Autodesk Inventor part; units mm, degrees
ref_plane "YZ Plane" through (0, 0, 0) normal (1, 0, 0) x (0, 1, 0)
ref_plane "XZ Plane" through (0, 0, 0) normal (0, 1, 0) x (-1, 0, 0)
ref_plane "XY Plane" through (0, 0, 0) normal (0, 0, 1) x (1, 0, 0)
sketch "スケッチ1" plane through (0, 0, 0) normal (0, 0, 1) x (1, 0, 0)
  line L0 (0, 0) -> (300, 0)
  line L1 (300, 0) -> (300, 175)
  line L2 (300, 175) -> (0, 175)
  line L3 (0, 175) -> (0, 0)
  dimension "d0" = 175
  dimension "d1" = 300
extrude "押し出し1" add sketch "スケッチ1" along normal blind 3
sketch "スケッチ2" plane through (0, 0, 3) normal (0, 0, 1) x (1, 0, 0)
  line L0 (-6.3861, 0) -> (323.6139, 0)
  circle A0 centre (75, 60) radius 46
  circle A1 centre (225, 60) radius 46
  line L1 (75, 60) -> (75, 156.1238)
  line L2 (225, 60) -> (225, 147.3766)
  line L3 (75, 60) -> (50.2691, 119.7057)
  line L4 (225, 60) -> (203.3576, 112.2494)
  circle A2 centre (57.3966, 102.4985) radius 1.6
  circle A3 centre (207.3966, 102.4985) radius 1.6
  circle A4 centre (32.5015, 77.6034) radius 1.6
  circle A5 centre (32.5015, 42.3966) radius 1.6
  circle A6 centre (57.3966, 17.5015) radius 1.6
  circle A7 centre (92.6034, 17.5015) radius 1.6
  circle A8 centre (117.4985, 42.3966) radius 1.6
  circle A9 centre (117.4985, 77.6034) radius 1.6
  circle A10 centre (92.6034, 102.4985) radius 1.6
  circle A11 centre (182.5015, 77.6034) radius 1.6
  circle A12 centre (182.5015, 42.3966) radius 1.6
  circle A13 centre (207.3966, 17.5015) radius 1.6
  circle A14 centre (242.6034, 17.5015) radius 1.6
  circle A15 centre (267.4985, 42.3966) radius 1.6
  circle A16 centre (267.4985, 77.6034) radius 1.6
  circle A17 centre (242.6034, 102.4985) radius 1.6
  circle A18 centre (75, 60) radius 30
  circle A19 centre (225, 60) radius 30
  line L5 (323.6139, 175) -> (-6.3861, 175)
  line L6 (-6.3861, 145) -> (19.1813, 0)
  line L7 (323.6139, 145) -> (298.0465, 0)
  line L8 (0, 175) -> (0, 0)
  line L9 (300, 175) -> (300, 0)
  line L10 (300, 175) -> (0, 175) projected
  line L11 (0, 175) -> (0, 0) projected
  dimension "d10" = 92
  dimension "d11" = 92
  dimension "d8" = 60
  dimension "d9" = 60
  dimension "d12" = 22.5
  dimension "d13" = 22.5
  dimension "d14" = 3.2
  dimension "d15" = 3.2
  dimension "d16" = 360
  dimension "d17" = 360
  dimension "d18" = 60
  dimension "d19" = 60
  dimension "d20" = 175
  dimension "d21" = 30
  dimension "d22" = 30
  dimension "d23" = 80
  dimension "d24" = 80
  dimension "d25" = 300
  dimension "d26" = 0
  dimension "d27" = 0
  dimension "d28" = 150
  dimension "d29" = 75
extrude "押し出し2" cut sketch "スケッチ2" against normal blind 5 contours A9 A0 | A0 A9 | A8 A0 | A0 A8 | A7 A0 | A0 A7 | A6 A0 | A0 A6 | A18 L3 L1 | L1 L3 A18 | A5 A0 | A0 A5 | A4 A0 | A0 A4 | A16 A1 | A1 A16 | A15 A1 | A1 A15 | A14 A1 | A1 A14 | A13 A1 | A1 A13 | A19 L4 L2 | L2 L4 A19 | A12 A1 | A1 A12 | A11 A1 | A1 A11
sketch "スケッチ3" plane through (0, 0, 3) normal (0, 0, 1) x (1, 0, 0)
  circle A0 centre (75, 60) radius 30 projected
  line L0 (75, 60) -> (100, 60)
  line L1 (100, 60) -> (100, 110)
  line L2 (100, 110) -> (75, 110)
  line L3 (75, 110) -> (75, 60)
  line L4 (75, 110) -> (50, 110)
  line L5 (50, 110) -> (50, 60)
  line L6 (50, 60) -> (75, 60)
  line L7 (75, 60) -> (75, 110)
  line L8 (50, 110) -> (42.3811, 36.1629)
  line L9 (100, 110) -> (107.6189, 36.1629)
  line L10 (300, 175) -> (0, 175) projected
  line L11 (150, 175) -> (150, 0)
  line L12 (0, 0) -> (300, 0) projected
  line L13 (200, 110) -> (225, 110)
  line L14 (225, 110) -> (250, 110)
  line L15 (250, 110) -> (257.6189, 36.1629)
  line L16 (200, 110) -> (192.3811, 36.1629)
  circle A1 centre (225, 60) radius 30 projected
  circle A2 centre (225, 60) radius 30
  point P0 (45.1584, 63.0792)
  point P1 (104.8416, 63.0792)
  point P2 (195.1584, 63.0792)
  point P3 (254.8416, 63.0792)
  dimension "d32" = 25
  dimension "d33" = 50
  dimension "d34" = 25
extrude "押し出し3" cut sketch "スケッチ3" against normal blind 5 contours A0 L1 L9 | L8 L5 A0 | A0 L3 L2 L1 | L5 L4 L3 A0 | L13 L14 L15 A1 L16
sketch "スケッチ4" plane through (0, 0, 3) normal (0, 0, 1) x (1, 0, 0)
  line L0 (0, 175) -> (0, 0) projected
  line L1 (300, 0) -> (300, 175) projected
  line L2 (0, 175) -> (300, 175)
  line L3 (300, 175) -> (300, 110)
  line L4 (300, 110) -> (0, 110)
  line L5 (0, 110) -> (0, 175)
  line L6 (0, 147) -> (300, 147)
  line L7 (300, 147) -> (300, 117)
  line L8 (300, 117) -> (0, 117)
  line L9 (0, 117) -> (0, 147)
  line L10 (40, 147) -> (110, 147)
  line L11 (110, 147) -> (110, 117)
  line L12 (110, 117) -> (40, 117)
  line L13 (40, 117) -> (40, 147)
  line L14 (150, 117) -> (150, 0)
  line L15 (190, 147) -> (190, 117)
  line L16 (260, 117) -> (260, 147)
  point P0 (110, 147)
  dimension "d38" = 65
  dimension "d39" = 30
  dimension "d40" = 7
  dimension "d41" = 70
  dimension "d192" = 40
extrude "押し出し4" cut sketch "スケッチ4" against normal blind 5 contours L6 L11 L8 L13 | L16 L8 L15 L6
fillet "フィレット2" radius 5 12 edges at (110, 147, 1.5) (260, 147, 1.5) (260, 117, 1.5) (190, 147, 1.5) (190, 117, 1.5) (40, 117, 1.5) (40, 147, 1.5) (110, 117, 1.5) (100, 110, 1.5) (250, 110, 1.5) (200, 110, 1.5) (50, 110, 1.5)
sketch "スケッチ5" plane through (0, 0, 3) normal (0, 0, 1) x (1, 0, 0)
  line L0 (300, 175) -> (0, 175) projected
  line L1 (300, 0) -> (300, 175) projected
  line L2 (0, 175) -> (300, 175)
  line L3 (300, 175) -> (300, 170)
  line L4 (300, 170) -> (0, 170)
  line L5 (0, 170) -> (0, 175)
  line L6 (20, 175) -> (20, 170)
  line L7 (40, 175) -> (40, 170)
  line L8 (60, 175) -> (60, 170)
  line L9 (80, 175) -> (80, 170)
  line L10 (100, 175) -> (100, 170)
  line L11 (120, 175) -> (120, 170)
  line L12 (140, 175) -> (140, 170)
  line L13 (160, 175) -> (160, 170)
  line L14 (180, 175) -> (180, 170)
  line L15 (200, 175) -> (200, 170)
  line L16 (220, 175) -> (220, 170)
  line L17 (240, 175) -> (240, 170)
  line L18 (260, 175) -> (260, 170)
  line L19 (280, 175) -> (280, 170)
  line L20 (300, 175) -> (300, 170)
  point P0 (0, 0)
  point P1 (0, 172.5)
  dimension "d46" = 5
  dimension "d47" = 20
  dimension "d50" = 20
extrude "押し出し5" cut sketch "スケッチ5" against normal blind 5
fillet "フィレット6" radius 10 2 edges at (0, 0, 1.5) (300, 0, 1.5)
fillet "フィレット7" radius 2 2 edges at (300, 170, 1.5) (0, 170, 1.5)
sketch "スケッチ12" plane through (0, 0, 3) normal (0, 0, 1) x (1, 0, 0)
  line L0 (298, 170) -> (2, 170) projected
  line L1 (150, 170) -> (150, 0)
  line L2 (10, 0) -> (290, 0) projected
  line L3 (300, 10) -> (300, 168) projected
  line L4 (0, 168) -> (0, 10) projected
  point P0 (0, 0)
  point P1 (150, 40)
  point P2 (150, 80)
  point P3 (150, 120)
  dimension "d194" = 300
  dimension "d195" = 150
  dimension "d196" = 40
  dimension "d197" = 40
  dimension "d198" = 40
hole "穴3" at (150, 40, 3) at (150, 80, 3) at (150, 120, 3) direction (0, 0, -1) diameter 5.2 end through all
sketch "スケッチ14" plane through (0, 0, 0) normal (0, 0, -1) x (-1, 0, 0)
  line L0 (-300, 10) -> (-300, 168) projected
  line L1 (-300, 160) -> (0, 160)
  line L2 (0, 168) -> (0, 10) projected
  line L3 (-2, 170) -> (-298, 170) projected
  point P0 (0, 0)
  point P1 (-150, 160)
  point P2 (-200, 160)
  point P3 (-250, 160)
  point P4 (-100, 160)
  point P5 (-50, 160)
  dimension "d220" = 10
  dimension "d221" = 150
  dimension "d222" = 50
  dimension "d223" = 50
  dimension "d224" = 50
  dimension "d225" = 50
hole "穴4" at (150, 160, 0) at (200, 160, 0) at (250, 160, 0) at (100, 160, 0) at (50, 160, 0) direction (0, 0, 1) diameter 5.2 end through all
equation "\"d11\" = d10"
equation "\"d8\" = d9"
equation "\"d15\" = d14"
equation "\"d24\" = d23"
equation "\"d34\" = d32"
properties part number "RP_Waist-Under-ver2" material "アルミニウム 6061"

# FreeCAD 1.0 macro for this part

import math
import FreeCAD as App
import Part
import Sketcher

V = App.Vector
Q = App.Units.Quantity


def edges_at(feature, points):
    """Names of the edges that pass closest to the given points."""
    edges = feature.Shape.Edges
    near = lambda p: min(range(len(edges)), key=lambda i: edges[i].distToShape(Part.Vertex(*p))[0])
    return sorted({f"Edge{near(p) + 1}" for p in points})

doc = App.newDocument("Part")
params = doc.addObject("Spreadsheet::Sheet", "Params")
for row, (alias, value) in enumerate([
    ("sketch1_width", "300 mm"),
    ("sketch1_height", "175 mm"),
    ("pad1_length", "3 mm"),
    ("sketch2_diameter", "60 mm"),
    ("sketch2_diameter2", "3.2 mm"),
    ("pocket1_length", "5 mm"),
    ("sketch3_width", "50 mm"),
    ("sketch3_radius", "30 mm"),
    ("pocket2_length", "5 mm"),
    ("sketch4_width", "70 mm"),
    ("sketch4_height", "30 mm"),
    ("pocket3_length", "5 mm"),
    ("fillet_radius", "5 mm"),
    ("sketch5_height", "5 mm"),
    ("sketch5_width", "300 mm"),
    ("pocket4_length", "5 mm"),
    ("fillet2_radius", "10 mm"),
    ("fillet3_radius", "2 mm"),
    ("sketch6_diameter", "5.2 mm"),
    ("hole_diameter", "5.2 mm"),
    ("sketch7_diameter", "5.2 mm"),
    ("hole2_diameter", "5.2 mm"),
], start=1):
    params.set(f"A{row}", alias)
    params.set(f"B{row}", "=" + value)
    params.setAlias(f"B{row}", alias)

body = doc.addObject("PartDesign::Body", "Body")

# Sketch on XY plane
sketch1 = body.newObject("Sketcher::SketchObject", "Sketch")
sketch1.AttachmentSupport = (doc.getObject("XY_Plane"), [""])
sketch1.MapMode = "FlatFace"
sketch1.addGeometry([
    Part.LineSegment(V(0, 175, 0), V(0, 0, 0)),
    Part.LineSegment(V(0, 0, 0), V(300, 0, 0)),
    Part.LineSegment(V(300, 0, 0), V(300, 175, 0)),
    Part.LineSegment(V(300, 175, 0), V(0, 175, 0)),
], False)
sketch1.addConstraint([
    Sketcher.Constraint("Coincident", 0, 2, 1, 1),
    Sketcher.Constraint("Coincident", 1, 2, 2, 1),
    Sketcher.Constraint("Coincident", 2, 2, 3, 1),
    Sketcher.Constraint("Coincident", 3, 2, 0, 1),
    Sketcher.Constraint("Vertical", 0),
    Sketcher.Constraint("Horizontal", 1),
    Sketcher.Constraint("Vertical", 2),
    Sketcher.Constraint("Horizontal", 3),
    Sketcher.Constraint("Coincident", 0, 2, -1, 1),
    Sketcher.Constraint("DistanceX", 1, 1, 1, 2, Q("300 mm")),
    Sketcher.Constraint("DistanceY", 0, 2, 0, 1, Q("175 mm")),
])
sketch1.setExpression("Constraints[9]", "Params.sketch1_width")
sketch1.setExpression("Constraints[10]", "Params.sketch1_height")
pad1 = body.newObject("PartDesign::Pad", "Pad")
pad1.Profile = sketch1
pad1.setExpression("Length", "Params.pad1_length")

# Sketch on XY plane
sketch2 = body.newObject("Sketcher::SketchObject", "Sketch001")
sketch2.AttachmentSupport = (doc.getObject("XY_Plane"), [""])
sketch2.MapMode = "FlatFace"
sketch2.AttachmentOffset = App.Placement(V(0, 0, 3), App.Rotation())
sketch2.addGeometry([
    Part.Circle(V(117.5, 77.6, 0), V(0, 0, 1), 1.6),  # 0
    Part.Circle(V(117.5, 42.4, 0), V(0, 0, 1), 1.6),  # 1
    Part.Circle(V(92.6, 17.5, 0), V(0, 0, 1), 1.6),  # 2
    Part.Circle(V(57.4, 17.5, 0), V(0, 0, 1), 1.6),  # 3
    Part.Circle(V(75, 60, 0), V(0, 0, 1), 30),  # 4
    Part.Circle(V(32.5, 42.4, 0), V(0, 0, 1), 1.6),  # 5
    Part.Circle(V(32.5, 77.6, 0), V(0, 0, 1), 1.6),  # 6
    Part.Circle(V(267.5, 77.6, 0), V(0, 0, 1), 1.6),  # 7
    Part.Circle(V(267.5, 42.4, 0), V(0, 0, 1), 1.6),  # 8
    Part.Circle(V(242.6, 17.5, 0), V(0, 0, 1), 1.6),  # 9
    Part.Circle(V(207.4, 17.5, 0), V(0, 0, 1), 1.6),  # 10
    Part.Circle(V(225, 60, 0), V(0, 0, 1), 30),  # 11
    Part.Circle(V(182.5, 42.4, 0), V(0, 0, 1), 1.6),  # 12
    Part.Circle(V(182.5, 77.6, 0), V(0, 0, 1), 1.6),  # 13
], False)
sketch2.addConstraint([
    Sketcher.Constraint("Equal", 0, 1),
    Sketcher.Constraint("Equal", 1, 2),
    Sketcher.Constraint("Equal", 2, 3),
    Sketcher.Constraint("Equal", 3, 5),
    Sketcher.Constraint("Equal", 5, 6),
    Sketcher.Constraint("Equal", 6, 7),
    Sketcher.Constraint("Equal", 7, 8),
    Sketcher.Constraint("Equal", 8, 9),
    Sketcher.Constraint("Equal", 9, 10),
    Sketcher.Constraint("Equal", 4, 11),
    Sketcher.Constraint("Equal", 10, 12),
    Sketcher.Constraint("Equal", 12, 13),
    Sketcher.Constraint("Horizontal", 2, 3, 3, 3),
    Sketcher.Constraint("Horizontal", 1, 3, 5, 3),
    Sketcher.Constraint("Horizontal", 0, 3, 6, 3),
    Sketcher.Constraint("Horizontal", 6, 3, 7, 3),
    Sketcher.Constraint("Horizontal", 5, 3, 8, 3),
    Sketcher.Constraint("Horizontal", 3, 3, 9, 3),
    Sketcher.Constraint("Horizontal", 9, 3, 10, 3),
    Sketcher.Constraint("Horizontal", 4, 3, 11, 3),
    Sketcher.Constraint("Horizontal", 8, 3, 12, 3),
    Sketcher.Constraint("Horizontal", 7, 3, 13, 3),
    Sketcher.Constraint("Vertical", 0, 3, 1, 3),
    Sketcher.Constraint("Vertical", 5, 3, 6, 3),
    Sketcher.Constraint("Vertical", 7, 3, 8, 3),
    Sketcher.Constraint("Vertical", 12, 3, 13, 3),
    Sketcher.Constraint("Diameter", 4, Q("60 mm")),
    Sketcher.Constraint("Diameter", 0, Q("3.2 mm")),
    Sketcher.Constraint("DistanceX", -1, 1, 4, 3, Q("75 mm")),
    Sketcher.Constraint("DistanceY", -1, 1, 4, 3, Q("60 mm")),
    Sketcher.Constraint("DistanceX", 0, 3, 7, 3, Q("150 mm")),
    Sketcher.Constraint("DistanceX", 2, 3, 9, 3, Q("150 mm")),
    Sketcher.Constraint("DistanceX", -1, 1, 11, 3, Q("225 mm")),
    Sketcher.Constraint("DistanceX", 2, 3, 1, 3, Q("24.895 mm")),
    Sketcher.Constraint("DistanceY", 2, 3, 1, 3, Q("24.895 mm")),
    Sketcher.Constraint("DistanceY", 2, 3, 0, 3, Q("60.102 mm")),
    Sketcher.Constraint("DistanceX", 3, 3, 1, 3, Q("60.102 mm")),
    Sketcher.Constraint("DistanceX", 5, 3, 3, 3, Q("24.895 mm")),
    Sketcher.Constraint("DistanceX", 10, 3, 8, 3, Q("60.102 mm")),
    Sketcher.Constraint("DistanceX", 12, 3, 10, 3, Q("24.895 mm")),
    Sketcher.Constraint("DistanceX", -1, 1, 0, 3, Q("117.4985 mm")),
    Sketcher.Constraint("DistanceY", -1, 1, 0, 3, Q("77.6034 mm")),
])
sketch2.setExpression("Constraints[26]", "Params.sketch2_diameter")
sketch2.setExpression("Constraints[27]", "Params.sketch2_diameter2")
pocket1 = body.newObject("PartDesign::Pocket", "Pocket")
pocket1.Profile = sketch2
pocket1.setExpression("Length", "Params.pocket1_length")

# Sketch on XY plane
sketch3 = body.newObject("Sketcher::SketchObject", "Sketch002")
sketch3.AttachmentSupport = (doc.getObject("XY_Plane"), [""])
sketch3.MapMode = "FlatFace"
sketch3.AttachmentOffset = App.Placement(V(0, 0, 3), App.Rotation())
sketch3.addGeometry([
    Part.LineSegment(V(105, 63, 0), V(100, 110, 0)),  # 0
    Part.LineSegment(V(100, 110, 0), V(50, 110, 0)),  # 1
    Part.LineSegment(V(50, 110, 0), V(45, 63, 0)),  # 2
    Part.ArcOfCircle(Part.Circle(V(75, 60, 0), V(0, 0, 1), 30), math.radians(6), math.radians(174)),  # 3
    Part.LineSegment(V(250, 110, 0), V(200, 110, 0)),  # 4
    Part.LineSegment(V(200, 110, 0), V(195, 63, 0)),  # 5
    Part.ArcOfCircle(Part.Circle(V(225, 60, 0), V(0, 0, 1), 30), math.radians(6), math.radians(174)),  # 6
    Part.LineSegment(V(255, 63, 0), V(250, 110, 0)),  # 7
], False)
sketch3.addConstraint([
    Sketcher.Constraint("Coincident", 0, 2, 1, 1),
    Sketcher.Constraint("Coincident", 1, 2, 2, 1),
    Sketcher.Constraint("Tangent", 2, 2, 3, 2),
    Sketcher.Constraint("Tangent", 3, 1, 0, 1),
    Sketcher.Constraint("Coincident", 4, 2, 5, 1),
    Sketcher.Constraint("Tangent", 5, 2, 6, 2),
    Sketcher.Constraint("Tangent", 6, 1, 7, 1),
    Sketcher.Constraint("Coincident", 7, 2, 4, 1),
    Sketcher.Constraint("Horizontal", 1),
    Sketcher.Constraint("Horizontal", 4),
    Sketcher.Constraint("Equal", 3, 6),
    Sketcher.Constraint("Parallel", 2, 5),
    Sketcher.Constraint("Parallel", 0, 7),
    Sketcher.Constraint("Horizontal", 3, 3, 6, 3),
    Sketcher.Constraint("Horizontal", 2, 2, 3, 1),
    Sketcher.Constraint("Horizontal", 1, 2, 4, 2),
    Sketcher.Constraint("DistanceX", 1, 2, 1, 1, Q("50 mm")),
    Sketcher.Constraint("DistanceX", -1, 1, 1, 2, Q("50 mm")),
    Sketcher.Constraint("Radius", 3, Q("30 mm")),
    Sketcher.Constraint("DistanceY", 3, 3, 0, 2, Q("50 mm")),
    Sketcher.Constraint("DistanceY", -1, 1, 3, 3, Q("60 mm")),
    Sketcher.Constraint("DistanceX", -1, 1, 6, 3, Q("225 mm")),
])
sketch3.setExpression("Constraints[16]", "Params.sketch3_width")
sketch3.setExpression("Constraints[18]", "Params.sketch3_radius")
pocket2 = body.newObject("PartDesign::Pocket", "Pocket001")
pocket2.Profile = sketch3
pocket2.setExpression("Length", "Params.pocket2_length")

# Sketch on XY plane
sketch4 = body.newObject("Sketcher::SketchObject", "Sketch003")
sketch4.AttachmentSupport = (doc.getObject("XY_Plane"), [""])
sketch4.MapMode = "FlatFace"
sketch4.AttachmentOffset = App.Placement(V(0, 0, 3), App.Rotation())
sketch4.addGeometry([
    Part.LineSegment(V(110, 147, 0), V(40, 147, 0)),  # 0
    Part.LineSegment(V(40, 147, 0), V(40, 117, 0)),  # 1
    Part.LineSegment(V(40, 117, 0), V(110, 117, 0)),  # 2
    Part.LineSegment(V(110, 117, 0), V(110, 147, 0)),  # 3
    Part.LineSegment(V(260, 117, 0), V(260, 147, 0)),  # 4
    Part.LineSegment(V(260, 147, 0), V(190, 147, 0)),  # 5
    Part.LineSegment(V(190, 147, 0), V(190, 117, 0)),  # 6
    Part.LineSegment(V(190, 117, 0), V(260, 117, 0)),  # 7
], False)
sketch4.addConstraint([
    Sketcher.Constraint("Coincident", 0, 2, 1, 1),
    Sketcher.Constraint("Coincident", 1, 2, 2, 1),
    Sketcher.Constraint("Coincident", 2, 2, 3, 1),
    Sketcher.Constraint("Coincident", 3, 2, 0, 1),
    Sketcher.Constraint("Coincident", 4, 2, 5, 1),
    Sketcher.Constraint("Coincident", 5, 2, 6, 1),
    Sketcher.Constraint("Coincident", 6, 2, 7, 1),
    Sketcher.Constraint("Coincident", 7, 2, 4, 1),
    Sketcher.Constraint("Horizontal", 0),
    Sketcher.Constraint("Vertical", 1),
    Sketcher.Constraint("Horizontal", 2),
    Sketcher.Constraint("Vertical", 3),
    Sketcher.Constraint("Vertical", 4),
    Sketcher.Constraint("Horizontal", 5),
    Sketcher.Constraint("Vertical", 6),
    Sketcher.Constraint("Horizontal", 7),
    Sketcher.Constraint("Horizontal", 3, 2, 4, 2),
    Sketcher.Constraint("Horizontal", 2, 2, 6, 2),
    Sketcher.Constraint("Equal", 2, 5),
    Sketcher.Constraint("DistanceX", 0, 2, 0, 1, Q("70 mm")),
    Sketcher.Constraint("DistanceY", 1, 2, 1, 1, Q("30 mm")),
    Sketcher.Constraint("DistanceX", -1, 1, 0, 2, Q("40 mm")),
    Sketcher.Constraint("DistanceY", -1, 1, 0, 2, Q("147 mm")),
    Sketcher.Constraint("DistanceX", -1, 1, 4, 2, Q("260 mm")),
])
sketch4.setExpression("Constraints[19]", "Params.sketch4_width")
sketch4.setExpression("Constraints[20]", "Params.sketch4_height")
pocket3 = body.newObject("PartDesign::Pocket", "Pocket002")
pocket3.Profile = sketch4
pocket3.setExpression("Length", "Params.pocket3_length")
doc.recompute()

fillet = body.newObject("PartDesign::Fillet", "Fillet")
fillet.Base = (pocket3, edges_at(pocket3, [
    (110, 147, 1.5),
    (260, 147, 1.5),
    (260, 117, 1.5),
    (190, 147, 1.5),
    (190, 117, 1.5),
    (40, 117, 1.5),
    (40, 147, 1.5),
    (110, 117, 1.5),
    (100, 110, 1.5),
    (250, 110, 1.5),
    (200, 110, 1.5),
    (50, 110, 1.5),
]))
fillet.setExpression("Radius", "Params.fillet_radius")

# Sketch on XY plane
sketch5 = body.newObject("Sketcher::SketchObject", "Sketch004")
sketch5.AttachmentSupport = (doc.getObject("XY_Plane"), [""])
sketch5.MapMode = "FlatFace"
sketch5.AttachmentOffset = App.Placement(V(0, 0, 3), App.Rotation())
sketch5.addGeometry([
    Part.LineSegment(V(300, 170, 0), V(300, 175, 0)),
    Part.LineSegment(V(300, 175, 0), V(0, 175, 0)),
    Part.LineSegment(V(0, 175, 0), V(0, 170, 0)),
    Part.LineSegment(V(0, 170, 0), V(300, 170, 0)),
], False)
sketch5.addConstraint([
    Sketcher.Constraint("Coincident", 0, 2, 1, 1),
    Sketcher.Constraint("Coincident", 1, 2, 2, 1),
    Sketcher.Constraint("Coincident", 2, 2, 3, 1),
    Sketcher.Constraint("Coincident", 3, 2, 0, 1),
    Sketcher.Constraint("Vertical", 0),
    Sketcher.Constraint("Horizontal", 1),
    Sketcher.Constraint("Vertical", 2),
    Sketcher.Constraint("Horizontal", 3),
    Sketcher.Constraint("PointOnObject", 1, 2, -2),
    Sketcher.Constraint("DistanceY", 0, 1, 0, 2, Q("5 mm")),
    Sketcher.Constraint("DistanceX", 1, 2, 1, 1, Q("300 mm")),
    Sketcher.Constraint("DistanceY", -1, 1, 0, 2, Q("175 mm")),
])
sketch5.setExpression("Constraints[9]", "Params.sketch5_height")
sketch5.setExpression("Constraints[10]", "Params.sketch5_width")
pocket4 = body.newObject("PartDesign::Pocket", "Pocket003")
pocket4.Profile = sketch5
pocket4.setExpression("Length", "Params.pocket4_length")
doc.recompute()

fillet2 = body.newObject("PartDesign::Fillet", "Fillet001")
fillet2.Base = (pocket4, edges_at(pocket4, [(0, 0, 1.5), (300, 0, 1.5)]))
fillet2.setExpression("Radius", "Params.fillet2_radius")
doc.recompute()

fillet3 = body.newObject("PartDesign::Fillet", "Fillet002")
fillet3.Base = (fillet2, edges_at(fillet2, [(300, 170, 1.5), (0, 170, 1.5)]))
fillet3.setExpression("Radius", "Params.fillet3_radius")

# Sketch on XY plane
sketch6 = body.newObject("Sketcher::SketchObject", "Sketch005")
sketch6.AttachmentSupport = (doc.getObject("XY_Plane"), [""])
sketch6.MapMode = "FlatFace"
sketch6.AttachmentOffset = App.Placement(V(0, 0, 3), App.Rotation())
sketch6.addGeometry([
    Part.Circle(V(150, 40, 0), V(0, 0, 1), 2.6),
    Part.Circle(V(150, 80, 0), V(0, 0, 1), 2.6),
    Part.Circle(V(150, 120, 0), V(0, 0, 1), 2.6),
], False)
sketch6.addConstraint([
    Sketcher.Constraint("Equal", 0, 1),
    Sketcher.Constraint("Equal", 1, 2),
    Sketcher.Constraint("Vertical", 0, 3, 1, 3),
    Sketcher.Constraint("Vertical", 1, 3, 2, 3),
    Sketcher.Constraint("Diameter", 0, Q("5.2 mm")),
    Sketcher.Constraint("DistanceX", -1, 1, 0, 3, Q("150 mm")),
    Sketcher.Constraint("DistanceY", -1, 1, 0, 3, Q("40 mm")),
    Sketcher.Constraint("DistanceY", -1, 1, 1, 3, Q("80 mm")),
    Sketcher.Constraint("DistanceY", -1, 1, 2, 3, Q("120 mm")),
])
sketch6.setExpression("Constraints[4]", "Params.sketch6_diameter")
doc.recompute()
hole = body.newObject("PartDesign::Hole", "Hole")
hole.Profile = sketch6
hole.ThreadType = "None"
hole.setExpression("Diameter", "Params.hole_diameter")
hole.DepthType = "ThroughAll"

# Sketch on XY plane
sketch7 = body.newObject("Sketcher::SketchObject", "Sketch006")
sketch7.AttachmentSupport = (doc.getObject("XY_Plane"), [""])
sketch7.MapMode = "FlatFace"
sketch7.addGeometry([
    Part.Circle(V(150, 160, 0), V(0, 0, 1), 2.6),  # 0
    Part.Circle(V(200, 160, 0), V(0, 0, 1), 2.6),  # 1
    Part.Circle(V(250, 160, 0), V(0, 0, 1), 2.6),  # 2
    Part.Circle(V(100, 160, 0), V(0, 0, 1), 2.6),  # 3
    Part.Circle(V(50, 160, 0), V(0, 0, 1), 2.6),  # 4
], False)
sketch7.addConstraint([
    Sketcher.Constraint("Equal", 0, 1),
    Sketcher.Constraint("Equal", 1, 2),
    Sketcher.Constraint("Equal", 2, 3),
    Sketcher.Constraint("Equal", 3, 4),
    Sketcher.Constraint("Horizontal", 0, 3, 1, 3),
    Sketcher.Constraint("Horizontal", 1, 3, 2, 3),
    Sketcher.Constraint("Horizontal", 2, 3, 3, 3),
    Sketcher.Constraint("Horizontal", 3, 3, 4, 3),
    Sketcher.Constraint("Diameter", 0, Q("5.2 mm")),
    Sketcher.Constraint("DistanceX", -1, 1, 0, 3, Q("150 mm")),
    Sketcher.Constraint("DistanceY", -1, 1, 0, 3, Q("160 mm")),
    Sketcher.Constraint("DistanceX", -1, 1, 1, 3, Q("200 mm")),
    Sketcher.Constraint("DistanceX", -1, 1, 2, 3, Q("250 mm")),
    Sketcher.Constraint("DistanceX", -1, 1, 3, 3, Q("100 mm")),
    Sketcher.Constraint("DistanceX", -1, 1, 4, 3, Q("50 mm")),
])
sketch7.setExpression("Constraints[8]", "Params.sketch7_diameter")
doc.recompute()
hole2 = body.newObject("PartDesign::Hole", "Hole001")
hole2.Profile = sketch7
hole2.ThreadType = "None"
hole2.setExpression("Diameter", "Params.hole2_diameter")
hole2.DepthType = "ThroughAll"
hole2.Reversed = True

doc.recompute()
